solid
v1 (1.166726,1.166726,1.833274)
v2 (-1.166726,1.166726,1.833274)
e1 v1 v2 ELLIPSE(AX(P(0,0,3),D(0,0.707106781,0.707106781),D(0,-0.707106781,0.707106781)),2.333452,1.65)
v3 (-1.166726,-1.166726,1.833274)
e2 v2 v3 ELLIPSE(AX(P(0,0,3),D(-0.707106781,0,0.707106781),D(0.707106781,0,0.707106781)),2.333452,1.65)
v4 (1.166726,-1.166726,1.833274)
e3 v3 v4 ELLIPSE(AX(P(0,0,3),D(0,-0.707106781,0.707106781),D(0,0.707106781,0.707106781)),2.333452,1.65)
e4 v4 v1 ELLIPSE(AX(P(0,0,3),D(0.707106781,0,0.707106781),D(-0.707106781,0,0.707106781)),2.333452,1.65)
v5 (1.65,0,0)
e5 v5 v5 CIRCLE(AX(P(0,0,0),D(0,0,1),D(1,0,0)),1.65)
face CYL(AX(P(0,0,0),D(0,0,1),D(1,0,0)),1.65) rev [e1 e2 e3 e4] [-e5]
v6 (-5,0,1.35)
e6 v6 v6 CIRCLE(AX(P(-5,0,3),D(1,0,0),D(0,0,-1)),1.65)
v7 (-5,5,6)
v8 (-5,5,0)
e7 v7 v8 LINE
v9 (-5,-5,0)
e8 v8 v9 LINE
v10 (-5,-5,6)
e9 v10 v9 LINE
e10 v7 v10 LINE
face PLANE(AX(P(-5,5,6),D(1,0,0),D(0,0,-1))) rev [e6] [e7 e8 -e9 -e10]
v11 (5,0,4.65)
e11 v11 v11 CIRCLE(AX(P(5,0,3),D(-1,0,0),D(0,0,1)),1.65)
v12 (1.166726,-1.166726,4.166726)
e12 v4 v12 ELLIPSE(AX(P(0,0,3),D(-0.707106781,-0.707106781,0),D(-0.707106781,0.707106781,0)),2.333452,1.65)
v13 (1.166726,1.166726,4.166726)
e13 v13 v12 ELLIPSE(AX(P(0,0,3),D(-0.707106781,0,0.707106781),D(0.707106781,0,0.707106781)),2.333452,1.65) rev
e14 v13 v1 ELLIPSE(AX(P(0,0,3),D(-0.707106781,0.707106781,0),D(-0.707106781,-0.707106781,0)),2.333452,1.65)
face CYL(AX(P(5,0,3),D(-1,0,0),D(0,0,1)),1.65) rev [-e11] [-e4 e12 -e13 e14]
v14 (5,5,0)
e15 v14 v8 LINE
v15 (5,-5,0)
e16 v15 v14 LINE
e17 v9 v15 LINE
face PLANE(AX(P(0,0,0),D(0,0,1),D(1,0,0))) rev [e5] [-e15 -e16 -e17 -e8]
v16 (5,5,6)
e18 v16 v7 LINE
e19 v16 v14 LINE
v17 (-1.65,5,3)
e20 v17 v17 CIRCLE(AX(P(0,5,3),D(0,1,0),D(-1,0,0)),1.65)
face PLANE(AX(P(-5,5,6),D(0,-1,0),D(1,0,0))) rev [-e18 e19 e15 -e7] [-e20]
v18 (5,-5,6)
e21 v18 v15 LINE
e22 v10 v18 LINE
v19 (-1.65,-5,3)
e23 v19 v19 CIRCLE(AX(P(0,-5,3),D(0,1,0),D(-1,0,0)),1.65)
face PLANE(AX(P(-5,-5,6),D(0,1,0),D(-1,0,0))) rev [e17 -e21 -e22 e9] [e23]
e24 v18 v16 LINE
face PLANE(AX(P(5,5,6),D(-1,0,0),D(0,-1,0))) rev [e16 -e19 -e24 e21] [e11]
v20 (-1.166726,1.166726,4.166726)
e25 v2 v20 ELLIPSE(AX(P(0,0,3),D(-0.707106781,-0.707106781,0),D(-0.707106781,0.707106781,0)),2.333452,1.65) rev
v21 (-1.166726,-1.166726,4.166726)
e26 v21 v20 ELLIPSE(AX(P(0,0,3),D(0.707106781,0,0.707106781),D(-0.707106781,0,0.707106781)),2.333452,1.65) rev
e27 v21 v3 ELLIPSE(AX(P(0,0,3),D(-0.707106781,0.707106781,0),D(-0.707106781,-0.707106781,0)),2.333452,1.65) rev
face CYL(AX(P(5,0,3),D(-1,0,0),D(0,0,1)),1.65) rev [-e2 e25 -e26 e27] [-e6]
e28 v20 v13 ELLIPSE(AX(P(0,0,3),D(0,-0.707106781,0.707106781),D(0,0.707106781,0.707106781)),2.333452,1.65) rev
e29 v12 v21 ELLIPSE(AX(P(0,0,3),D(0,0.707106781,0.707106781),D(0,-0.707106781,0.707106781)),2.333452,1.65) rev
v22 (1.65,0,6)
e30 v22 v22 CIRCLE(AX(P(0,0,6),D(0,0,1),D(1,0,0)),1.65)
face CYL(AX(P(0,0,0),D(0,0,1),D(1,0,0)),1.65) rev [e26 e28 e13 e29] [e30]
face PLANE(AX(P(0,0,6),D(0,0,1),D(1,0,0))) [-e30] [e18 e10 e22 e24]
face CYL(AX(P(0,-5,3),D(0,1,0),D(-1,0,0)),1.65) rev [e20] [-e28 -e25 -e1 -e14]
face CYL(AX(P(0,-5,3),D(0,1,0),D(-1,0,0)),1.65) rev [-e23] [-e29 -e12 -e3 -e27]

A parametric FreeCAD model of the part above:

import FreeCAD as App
import Part
import Sketcher

V = App.Vector
Q = App.Units.Quantity

doc = App.newDocument("Part")
body = doc.addObject("PartDesign::Body", "Body")

# Sketch on XY plane
sketch1 = body.newObject("Sketcher::SketchObject", "Sketch")
sketch1.AttachmentSupport = (doc.getObject("XY_Plane"), [""])
sketch1.MapMode = "FlatFace"
sketch1.addGeometry([
    Part.LineSegment(V(-5, 5, 0), V(-5, -5, 0)),
    Part.LineSegment(V(-5, -5, 0), V(5, -5, 0)),
    Part.LineSegment(V(5, -5, 0), V(5, 5, 0)),
    Part.LineSegment(V(5, 5, 0), V(-5, 5, 0)),
], False)
sketch1.addConstraint([
    Sketcher.Constraint("Coincident", 0, 2, 1, 1),
    Sketcher.Constraint("Coincident", 1, 2, 2, 1),
    Sketcher.Constraint("Coincident", 2, 2, 3, 1),
    Sketcher.Constraint("Coincident", 3, 2, 0, 1),
    Sketcher.Constraint("Vertical", 0),
    Sketcher.Constraint("Horizontal", 1),
    Sketcher.Constraint("Vertical", 2),
    Sketcher.Constraint("Horizontal", 3),
    Sketcher.Constraint("Symmetric", 0, 2, 2, 2, -1, 1),
    Sketcher.Constraint("Equal", 3, 0),
    Sketcher.Constraint("DistanceX", 1, 1, 1, 2, Q("10 mm")),
])
pad1 = body.newObject("PartDesign::Pad", "Pad")
pad1.Profile = sketch1
pad1.Length = 6

# Sketch on XY plane
sketch2 = body.newObject("Sketcher::SketchObject", "Sketch001")
sketch2.AttachmentSupport = (doc.getObject("XY_Plane"), [""])
sketch2.MapMode = "FlatFace"
sketch2.AttachmentOffset = App.Placement(V(0, 0, 6), App.Rotation())
sketch2.addGeometry(Part.Circle(V(0, 0, 0), V(0, 0, 1), 1.65), False)
sketch2.addConstraint([
    Sketcher.Constraint("Coincident", 0, 3, -1, 1),
    Sketcher.Constraint("Diameter", 0, Q("3.3 mm")),
])
pocket1 = body.newObject("PartDesign::Pocket", "Pocket")
pocket1.Profile = sketch2
pocket1.Length = 6

# Sketch on YZ plane
sketch3 = body.newObject("Sketcher::SketchObject", "Sketch002")
sketch3.AttachmentSupport = (doc.getObject("YZ_Plane"), [""])
sketch3.MapMode = "FlatFace"
sketch3.AttachmentOffset = App.Placement(V(0, 0, -5), App.Rotation())
sketch3.addGeometry(Part.Circle(V(0, 3, 0), V(0, 0, 1), 1.65), False)
sketch3.addConstraint([
    Sketcher.Constraint("PointOnObject", 0, 3, -2),
    Sketcher.Constraint("Diameter", 0, Q("3.3 mm")),
    Sketcher.Constraint("DistanceY", -1, 1, 0, 3, Q("3 mm")),
])
pocket2 = body.newObject("PartDesign::Pocket", "Pocket001")
pocket2.Profile = sketch3
pocket2.Type = "ThroughAll"
pocket2.Midplane = True

# Sketch on XZ plane
sketch4 = body.newObject("Sketcher::SketchObject", "Sketch003")
sketch4.AttachmentSupport = (doc.getObject("XZ_Plane"), [""])
sketch4.MapMode = "FlatFace"
sketch4.AttachmentOffset = App.Placement(V(0, 0, -5), App.Rotation())
sketch4.addGeometry(Part.Circle(V(0, 3, 0), V(0, 0, 1), 1.65), False)
sketch4.addConstraint([
    Sketcher.Constraint("PointOnObject", 0, 3, -2),
    Sketcher.Constraint("Diameter", 0, Q("3.3 mm")),
    Sketcher.Constraint("DistanceY", -1, 1, 0, 3, Q("3 mm")),
])
pocket3 = body.newObject("PartDesign::Pocket", "Pocket002")
pocket3.Profile = sketch4
pocket3.Type = "ThroughAll"
pocket3.Reversed = True

doc.recompute()
